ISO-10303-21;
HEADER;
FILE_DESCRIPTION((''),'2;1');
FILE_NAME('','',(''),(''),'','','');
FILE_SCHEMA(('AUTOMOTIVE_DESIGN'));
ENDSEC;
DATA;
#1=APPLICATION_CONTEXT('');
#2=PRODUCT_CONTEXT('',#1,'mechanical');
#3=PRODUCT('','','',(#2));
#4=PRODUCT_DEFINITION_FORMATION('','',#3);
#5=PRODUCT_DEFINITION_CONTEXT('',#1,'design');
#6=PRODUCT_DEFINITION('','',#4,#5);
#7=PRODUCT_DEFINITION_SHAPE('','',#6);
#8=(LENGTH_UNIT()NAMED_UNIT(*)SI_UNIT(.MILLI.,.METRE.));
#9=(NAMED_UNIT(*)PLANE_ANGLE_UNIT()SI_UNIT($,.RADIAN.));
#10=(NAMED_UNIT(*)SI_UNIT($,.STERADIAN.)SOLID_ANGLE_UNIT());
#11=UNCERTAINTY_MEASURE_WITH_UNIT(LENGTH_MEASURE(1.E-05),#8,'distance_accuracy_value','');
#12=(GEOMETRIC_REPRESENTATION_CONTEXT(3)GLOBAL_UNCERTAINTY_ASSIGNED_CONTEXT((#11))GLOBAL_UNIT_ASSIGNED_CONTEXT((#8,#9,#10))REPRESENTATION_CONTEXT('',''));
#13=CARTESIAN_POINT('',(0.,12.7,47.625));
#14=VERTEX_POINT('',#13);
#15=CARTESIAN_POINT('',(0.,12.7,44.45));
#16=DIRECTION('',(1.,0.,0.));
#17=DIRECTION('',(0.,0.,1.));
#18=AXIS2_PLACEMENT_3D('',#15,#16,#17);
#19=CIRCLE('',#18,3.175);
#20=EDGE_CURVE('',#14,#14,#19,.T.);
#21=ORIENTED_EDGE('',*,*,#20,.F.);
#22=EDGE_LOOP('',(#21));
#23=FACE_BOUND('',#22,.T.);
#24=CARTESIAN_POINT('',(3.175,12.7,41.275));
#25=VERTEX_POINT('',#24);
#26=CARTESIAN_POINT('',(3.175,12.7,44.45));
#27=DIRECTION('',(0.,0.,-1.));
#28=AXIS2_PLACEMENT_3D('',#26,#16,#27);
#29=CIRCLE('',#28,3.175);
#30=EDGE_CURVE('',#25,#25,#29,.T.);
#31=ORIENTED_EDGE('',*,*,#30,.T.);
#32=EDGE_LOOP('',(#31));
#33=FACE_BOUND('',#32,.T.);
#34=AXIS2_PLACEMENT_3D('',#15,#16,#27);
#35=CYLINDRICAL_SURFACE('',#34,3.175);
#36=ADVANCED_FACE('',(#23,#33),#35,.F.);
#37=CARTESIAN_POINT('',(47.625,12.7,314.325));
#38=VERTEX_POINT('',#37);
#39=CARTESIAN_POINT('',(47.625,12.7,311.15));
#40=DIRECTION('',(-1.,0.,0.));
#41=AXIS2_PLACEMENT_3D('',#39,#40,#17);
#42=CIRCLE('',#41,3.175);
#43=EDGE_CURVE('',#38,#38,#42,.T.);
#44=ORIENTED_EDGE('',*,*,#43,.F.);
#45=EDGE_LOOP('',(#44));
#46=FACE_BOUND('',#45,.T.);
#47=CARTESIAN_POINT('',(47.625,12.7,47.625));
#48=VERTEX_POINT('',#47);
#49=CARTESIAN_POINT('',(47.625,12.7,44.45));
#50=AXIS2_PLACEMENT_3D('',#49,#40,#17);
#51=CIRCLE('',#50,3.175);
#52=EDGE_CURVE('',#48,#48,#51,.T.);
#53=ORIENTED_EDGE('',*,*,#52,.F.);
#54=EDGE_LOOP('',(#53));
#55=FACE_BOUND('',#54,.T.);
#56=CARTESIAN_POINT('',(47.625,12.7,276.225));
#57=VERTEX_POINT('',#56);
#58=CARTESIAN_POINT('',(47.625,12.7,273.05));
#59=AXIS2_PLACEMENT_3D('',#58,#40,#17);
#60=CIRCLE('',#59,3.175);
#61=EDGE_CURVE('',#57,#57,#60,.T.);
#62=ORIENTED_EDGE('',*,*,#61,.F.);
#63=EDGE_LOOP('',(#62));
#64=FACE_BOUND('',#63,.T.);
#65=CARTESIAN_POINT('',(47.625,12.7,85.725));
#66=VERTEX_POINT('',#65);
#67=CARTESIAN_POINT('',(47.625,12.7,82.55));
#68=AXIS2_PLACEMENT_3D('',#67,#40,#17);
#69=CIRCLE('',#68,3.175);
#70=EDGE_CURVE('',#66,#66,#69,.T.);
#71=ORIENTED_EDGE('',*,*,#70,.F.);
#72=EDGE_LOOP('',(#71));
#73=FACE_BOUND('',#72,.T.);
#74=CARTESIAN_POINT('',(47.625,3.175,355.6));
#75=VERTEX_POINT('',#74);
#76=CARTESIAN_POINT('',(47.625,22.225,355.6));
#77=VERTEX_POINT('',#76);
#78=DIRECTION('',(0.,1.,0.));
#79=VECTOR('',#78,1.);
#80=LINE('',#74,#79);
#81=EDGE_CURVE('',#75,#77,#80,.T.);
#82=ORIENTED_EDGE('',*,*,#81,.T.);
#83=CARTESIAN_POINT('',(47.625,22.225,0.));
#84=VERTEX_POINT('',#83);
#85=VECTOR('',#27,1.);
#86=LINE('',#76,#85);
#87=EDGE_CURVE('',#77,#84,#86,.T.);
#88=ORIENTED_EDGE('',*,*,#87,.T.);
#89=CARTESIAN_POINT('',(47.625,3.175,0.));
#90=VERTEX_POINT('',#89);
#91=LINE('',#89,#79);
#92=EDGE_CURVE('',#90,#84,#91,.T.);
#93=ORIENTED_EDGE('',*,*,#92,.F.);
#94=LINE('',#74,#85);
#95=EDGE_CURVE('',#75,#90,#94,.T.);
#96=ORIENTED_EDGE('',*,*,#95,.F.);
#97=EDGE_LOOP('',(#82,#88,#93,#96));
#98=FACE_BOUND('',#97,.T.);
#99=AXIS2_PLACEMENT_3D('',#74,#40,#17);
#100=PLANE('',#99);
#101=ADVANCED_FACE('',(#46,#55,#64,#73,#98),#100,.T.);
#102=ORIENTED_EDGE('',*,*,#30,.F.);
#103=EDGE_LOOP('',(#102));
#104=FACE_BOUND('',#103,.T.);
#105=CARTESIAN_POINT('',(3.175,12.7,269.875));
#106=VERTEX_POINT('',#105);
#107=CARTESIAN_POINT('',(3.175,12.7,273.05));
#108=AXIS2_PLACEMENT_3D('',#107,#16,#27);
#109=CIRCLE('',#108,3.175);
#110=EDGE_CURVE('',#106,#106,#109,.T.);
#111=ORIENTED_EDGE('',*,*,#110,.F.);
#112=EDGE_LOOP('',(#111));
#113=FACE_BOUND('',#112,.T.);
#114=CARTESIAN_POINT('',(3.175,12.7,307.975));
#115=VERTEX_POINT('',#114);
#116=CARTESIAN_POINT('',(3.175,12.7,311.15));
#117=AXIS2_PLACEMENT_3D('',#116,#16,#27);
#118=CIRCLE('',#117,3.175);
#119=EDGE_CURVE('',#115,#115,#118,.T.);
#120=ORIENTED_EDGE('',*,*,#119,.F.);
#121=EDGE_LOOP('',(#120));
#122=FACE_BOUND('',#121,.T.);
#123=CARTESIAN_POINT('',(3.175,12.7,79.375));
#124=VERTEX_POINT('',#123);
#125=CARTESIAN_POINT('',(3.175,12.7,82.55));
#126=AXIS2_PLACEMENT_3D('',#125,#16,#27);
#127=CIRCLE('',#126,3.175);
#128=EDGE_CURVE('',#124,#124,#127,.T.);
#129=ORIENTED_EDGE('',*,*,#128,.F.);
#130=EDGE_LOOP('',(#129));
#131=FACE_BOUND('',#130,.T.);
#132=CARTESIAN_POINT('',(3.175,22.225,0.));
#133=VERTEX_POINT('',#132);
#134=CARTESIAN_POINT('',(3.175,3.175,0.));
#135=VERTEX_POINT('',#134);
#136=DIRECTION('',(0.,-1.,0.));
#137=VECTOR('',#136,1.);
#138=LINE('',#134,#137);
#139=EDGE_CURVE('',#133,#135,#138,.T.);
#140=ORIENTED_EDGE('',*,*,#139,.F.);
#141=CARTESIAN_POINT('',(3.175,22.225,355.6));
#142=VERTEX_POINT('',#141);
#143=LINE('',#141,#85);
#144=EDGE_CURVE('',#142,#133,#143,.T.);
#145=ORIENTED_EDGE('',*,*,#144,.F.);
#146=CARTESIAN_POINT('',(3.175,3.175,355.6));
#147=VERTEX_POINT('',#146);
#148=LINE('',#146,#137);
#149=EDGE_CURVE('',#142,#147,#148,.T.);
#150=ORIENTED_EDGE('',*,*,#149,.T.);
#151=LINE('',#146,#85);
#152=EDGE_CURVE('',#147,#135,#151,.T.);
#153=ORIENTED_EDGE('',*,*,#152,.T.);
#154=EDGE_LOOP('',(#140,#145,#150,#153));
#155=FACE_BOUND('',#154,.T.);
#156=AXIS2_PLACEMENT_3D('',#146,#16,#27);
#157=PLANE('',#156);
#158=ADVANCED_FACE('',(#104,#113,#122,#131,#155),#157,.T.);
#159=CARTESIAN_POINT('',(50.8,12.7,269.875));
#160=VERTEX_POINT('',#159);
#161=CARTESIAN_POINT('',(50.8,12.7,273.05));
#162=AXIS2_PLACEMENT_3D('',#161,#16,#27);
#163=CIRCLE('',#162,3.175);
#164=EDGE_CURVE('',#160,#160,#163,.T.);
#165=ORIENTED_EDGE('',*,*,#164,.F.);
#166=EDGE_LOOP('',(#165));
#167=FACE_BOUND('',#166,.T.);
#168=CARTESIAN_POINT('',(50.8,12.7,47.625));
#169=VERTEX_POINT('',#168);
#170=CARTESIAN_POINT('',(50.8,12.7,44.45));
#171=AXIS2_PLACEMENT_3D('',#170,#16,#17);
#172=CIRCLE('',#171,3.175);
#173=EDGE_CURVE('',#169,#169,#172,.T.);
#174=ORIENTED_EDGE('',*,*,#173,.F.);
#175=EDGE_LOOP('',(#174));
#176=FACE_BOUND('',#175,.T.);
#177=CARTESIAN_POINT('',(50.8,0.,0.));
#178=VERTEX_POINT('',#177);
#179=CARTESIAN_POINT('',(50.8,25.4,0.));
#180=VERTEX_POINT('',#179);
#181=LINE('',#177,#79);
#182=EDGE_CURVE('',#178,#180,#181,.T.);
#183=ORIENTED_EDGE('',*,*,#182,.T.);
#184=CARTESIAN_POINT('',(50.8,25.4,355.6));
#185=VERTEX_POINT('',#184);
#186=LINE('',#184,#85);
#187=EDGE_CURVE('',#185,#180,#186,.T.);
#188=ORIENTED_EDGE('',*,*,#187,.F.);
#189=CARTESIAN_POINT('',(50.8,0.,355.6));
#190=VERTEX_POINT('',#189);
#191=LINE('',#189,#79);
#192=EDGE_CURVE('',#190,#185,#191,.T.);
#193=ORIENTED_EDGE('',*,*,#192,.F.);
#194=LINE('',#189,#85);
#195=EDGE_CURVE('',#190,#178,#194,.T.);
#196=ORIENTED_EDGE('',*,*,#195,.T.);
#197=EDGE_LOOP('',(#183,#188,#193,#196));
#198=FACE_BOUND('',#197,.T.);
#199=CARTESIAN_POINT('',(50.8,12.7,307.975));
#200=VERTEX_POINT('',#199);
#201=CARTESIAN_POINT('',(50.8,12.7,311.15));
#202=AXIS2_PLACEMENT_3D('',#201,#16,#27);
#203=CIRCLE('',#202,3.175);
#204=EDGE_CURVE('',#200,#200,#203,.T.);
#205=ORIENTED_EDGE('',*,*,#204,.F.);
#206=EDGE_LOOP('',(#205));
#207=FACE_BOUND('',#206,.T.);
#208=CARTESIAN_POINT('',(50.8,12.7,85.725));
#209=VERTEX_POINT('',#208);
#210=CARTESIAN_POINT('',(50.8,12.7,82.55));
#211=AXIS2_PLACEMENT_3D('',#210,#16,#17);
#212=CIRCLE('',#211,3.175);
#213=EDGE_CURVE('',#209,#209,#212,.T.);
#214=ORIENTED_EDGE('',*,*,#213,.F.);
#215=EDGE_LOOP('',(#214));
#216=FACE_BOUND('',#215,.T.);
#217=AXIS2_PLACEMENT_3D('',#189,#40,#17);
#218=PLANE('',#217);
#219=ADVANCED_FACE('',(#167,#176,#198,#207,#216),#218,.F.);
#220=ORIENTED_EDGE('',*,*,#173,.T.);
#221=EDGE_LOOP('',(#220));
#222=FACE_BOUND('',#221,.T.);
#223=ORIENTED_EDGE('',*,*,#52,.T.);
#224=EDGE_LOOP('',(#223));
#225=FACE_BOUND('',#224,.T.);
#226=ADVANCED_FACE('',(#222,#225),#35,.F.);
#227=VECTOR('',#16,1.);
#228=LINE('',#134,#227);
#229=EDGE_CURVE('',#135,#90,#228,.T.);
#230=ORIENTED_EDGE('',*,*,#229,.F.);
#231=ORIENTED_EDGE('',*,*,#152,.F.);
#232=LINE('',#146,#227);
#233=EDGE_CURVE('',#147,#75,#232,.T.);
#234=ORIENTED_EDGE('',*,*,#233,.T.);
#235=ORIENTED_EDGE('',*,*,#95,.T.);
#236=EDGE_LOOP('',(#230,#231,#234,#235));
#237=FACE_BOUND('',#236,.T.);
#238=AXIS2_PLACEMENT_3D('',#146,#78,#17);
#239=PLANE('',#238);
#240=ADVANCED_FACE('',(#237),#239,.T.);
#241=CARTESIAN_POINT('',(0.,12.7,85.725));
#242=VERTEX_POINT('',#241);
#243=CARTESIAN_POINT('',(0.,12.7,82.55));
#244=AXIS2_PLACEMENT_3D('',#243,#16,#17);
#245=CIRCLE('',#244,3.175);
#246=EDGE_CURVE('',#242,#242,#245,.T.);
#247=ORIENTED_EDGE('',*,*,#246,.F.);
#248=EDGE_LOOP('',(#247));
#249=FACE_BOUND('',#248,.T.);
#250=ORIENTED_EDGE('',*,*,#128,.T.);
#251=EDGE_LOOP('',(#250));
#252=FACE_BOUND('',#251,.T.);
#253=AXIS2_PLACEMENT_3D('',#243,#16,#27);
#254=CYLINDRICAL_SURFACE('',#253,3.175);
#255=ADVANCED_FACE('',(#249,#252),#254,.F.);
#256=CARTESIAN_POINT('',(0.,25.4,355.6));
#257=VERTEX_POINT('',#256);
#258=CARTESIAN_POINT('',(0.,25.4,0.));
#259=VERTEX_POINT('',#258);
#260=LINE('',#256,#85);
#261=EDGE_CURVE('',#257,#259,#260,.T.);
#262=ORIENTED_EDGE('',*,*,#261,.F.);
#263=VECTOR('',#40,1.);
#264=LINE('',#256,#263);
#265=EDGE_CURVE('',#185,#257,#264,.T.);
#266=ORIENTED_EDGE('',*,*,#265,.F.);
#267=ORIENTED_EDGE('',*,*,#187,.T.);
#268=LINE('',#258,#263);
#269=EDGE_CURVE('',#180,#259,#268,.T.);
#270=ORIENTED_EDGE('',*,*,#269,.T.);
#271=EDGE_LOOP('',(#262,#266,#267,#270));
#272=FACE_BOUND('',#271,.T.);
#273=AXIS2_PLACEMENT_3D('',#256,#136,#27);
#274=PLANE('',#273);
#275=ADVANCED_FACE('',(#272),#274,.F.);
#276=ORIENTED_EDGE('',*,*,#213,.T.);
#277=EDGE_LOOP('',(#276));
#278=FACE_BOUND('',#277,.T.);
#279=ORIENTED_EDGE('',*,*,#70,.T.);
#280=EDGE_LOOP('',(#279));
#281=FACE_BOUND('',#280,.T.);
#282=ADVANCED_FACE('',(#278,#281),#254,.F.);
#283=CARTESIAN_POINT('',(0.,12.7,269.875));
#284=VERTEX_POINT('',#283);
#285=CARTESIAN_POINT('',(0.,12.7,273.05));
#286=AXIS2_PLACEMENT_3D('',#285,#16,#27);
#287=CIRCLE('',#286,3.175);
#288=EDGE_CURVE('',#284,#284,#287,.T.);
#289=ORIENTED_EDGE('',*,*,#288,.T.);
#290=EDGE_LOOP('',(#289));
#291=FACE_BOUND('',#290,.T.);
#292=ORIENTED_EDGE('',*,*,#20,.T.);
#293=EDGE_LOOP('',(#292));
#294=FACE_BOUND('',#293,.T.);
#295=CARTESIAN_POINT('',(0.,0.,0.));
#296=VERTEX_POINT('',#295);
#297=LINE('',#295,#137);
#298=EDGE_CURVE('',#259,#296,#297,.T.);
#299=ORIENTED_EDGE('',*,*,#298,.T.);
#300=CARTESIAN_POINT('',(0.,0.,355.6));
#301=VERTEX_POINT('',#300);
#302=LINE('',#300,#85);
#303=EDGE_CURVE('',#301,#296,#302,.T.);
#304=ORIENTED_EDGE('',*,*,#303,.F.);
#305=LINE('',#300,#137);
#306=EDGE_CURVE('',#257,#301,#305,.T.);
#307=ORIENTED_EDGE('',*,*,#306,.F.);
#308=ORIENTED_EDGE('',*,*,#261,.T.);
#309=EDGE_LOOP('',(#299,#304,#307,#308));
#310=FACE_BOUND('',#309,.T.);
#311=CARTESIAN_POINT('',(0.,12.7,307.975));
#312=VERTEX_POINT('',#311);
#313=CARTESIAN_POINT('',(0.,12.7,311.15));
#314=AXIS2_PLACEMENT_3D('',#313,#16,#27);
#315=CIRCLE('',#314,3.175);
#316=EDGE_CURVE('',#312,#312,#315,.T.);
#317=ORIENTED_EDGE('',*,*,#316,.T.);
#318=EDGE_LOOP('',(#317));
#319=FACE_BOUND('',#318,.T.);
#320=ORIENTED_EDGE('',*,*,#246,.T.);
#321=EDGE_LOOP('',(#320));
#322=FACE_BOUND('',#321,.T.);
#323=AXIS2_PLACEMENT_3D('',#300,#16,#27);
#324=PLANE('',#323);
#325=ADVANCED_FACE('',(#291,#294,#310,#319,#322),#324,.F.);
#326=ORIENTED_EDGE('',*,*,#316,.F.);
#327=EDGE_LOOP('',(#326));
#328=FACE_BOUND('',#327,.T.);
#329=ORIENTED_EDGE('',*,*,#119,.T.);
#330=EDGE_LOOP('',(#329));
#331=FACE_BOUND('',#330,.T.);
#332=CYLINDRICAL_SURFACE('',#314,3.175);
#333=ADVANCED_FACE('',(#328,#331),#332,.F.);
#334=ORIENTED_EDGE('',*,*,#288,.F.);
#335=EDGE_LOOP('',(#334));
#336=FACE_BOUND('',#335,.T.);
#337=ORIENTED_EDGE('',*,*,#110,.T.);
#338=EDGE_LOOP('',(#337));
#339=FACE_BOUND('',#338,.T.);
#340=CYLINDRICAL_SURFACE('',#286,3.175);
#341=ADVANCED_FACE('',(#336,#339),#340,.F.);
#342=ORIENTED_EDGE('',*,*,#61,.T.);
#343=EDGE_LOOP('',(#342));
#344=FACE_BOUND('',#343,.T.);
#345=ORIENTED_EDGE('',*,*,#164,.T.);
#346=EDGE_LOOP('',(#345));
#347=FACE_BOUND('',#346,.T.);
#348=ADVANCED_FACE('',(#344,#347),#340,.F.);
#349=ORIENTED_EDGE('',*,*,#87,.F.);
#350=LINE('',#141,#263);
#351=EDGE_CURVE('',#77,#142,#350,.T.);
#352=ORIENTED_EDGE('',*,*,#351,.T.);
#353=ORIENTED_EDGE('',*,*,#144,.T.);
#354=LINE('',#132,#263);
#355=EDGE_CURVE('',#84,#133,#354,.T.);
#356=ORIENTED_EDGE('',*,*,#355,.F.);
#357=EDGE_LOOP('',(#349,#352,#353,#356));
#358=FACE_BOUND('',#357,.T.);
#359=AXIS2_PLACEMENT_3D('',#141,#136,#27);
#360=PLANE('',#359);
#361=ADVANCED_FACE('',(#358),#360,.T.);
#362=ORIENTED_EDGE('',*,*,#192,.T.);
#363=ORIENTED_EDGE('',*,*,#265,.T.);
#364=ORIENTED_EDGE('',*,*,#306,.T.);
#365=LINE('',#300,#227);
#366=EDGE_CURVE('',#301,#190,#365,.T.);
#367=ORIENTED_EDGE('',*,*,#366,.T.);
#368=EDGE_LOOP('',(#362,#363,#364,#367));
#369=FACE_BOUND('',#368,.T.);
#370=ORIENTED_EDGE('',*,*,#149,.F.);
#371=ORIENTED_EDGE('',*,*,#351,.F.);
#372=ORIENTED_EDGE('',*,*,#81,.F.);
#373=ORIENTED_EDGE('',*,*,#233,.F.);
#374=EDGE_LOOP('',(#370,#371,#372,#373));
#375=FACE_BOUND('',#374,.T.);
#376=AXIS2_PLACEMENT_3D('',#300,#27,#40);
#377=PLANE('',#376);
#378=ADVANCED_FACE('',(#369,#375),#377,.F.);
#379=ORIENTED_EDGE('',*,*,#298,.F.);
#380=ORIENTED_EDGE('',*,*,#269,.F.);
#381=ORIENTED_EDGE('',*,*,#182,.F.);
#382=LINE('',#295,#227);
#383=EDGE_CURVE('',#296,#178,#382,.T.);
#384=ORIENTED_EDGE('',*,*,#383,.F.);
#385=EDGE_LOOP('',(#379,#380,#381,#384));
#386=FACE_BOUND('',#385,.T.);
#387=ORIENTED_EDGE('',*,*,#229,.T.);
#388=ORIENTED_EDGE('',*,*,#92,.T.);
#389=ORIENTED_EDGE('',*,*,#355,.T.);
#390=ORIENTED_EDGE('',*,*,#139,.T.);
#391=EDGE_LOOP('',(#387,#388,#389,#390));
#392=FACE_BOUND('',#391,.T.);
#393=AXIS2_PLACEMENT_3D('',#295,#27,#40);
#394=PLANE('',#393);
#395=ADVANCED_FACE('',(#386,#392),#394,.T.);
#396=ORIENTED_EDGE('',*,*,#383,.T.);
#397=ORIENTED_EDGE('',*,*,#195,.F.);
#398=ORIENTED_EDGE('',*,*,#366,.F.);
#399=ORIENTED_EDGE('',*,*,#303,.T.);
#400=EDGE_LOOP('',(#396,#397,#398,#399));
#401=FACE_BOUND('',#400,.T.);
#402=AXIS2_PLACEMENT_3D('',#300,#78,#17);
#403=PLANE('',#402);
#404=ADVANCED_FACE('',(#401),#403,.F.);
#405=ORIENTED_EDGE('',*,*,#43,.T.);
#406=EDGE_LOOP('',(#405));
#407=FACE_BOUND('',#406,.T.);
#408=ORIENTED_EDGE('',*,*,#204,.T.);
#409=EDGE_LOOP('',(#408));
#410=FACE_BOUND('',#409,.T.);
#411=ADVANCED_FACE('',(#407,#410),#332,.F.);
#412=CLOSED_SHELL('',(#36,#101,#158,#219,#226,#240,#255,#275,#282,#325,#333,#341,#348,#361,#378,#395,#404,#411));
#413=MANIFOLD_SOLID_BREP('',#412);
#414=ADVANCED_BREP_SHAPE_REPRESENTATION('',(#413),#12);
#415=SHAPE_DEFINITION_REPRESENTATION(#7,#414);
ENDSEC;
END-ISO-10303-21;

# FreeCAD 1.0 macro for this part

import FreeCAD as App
import Part
import Sketcher
Q = App.Units.Quantity


def add_polygon(sketch, points):
    """Adds a closed chain of lines whose ends are joined by coincident constraints."""
    first, n = sketch.GeometryCount, len(points)
    for a, b in zip(points, points[1:] + points[:1]):
        sketch.addGeometry(Part.LineSegment(App.Vector(*a, 0), App.Vector(*b, 0)), False)
    for i in range(n):
        sketch.addConstraint(Sketcher.Constraint("Coincident", first + i, 2, first + (i + 1) % n, 1))

doc = App.newDocument("Part")
body = doc.addObject("PartDesign::Body", "Body")

sketch1 = body.newObject("Sketcher::SketchObject", "Sketch")
sketch1.AttachmentSupport = (doc.getObject("XY_Plane"), [""])
sketch1.MapMode = "FlatFace"
add_polygon(sketch1, [(0, 25.4), (0, 0), (50.8, 0), (50.8, 25.4)])
add_polygon(sketch1, [(47.625, 3.175), (3.175, 3.175), (3.175, 22.225), (47.625, 22.225)])
sketch1.addConstraint(Sketcher.Constraint("Vertical", 0))
sketch1.addConstraint(Sketcher.Constraint("Horizontal", 1))
sketch1.addConstraint(Sketcher.Constraint("Vertical", 2))
sketch1.addConstraint(Sketcher.Constraint("Horizontal", 3))
sketch1.addConstraint(Sketcher.Constraint("Horizontal", 4))
sketch1.addConstraint(Sketcher.Constraint("Vertical", 5))
sketch1.addConstraint(Sketcher.Constraint("Horizontal", 6))
sketch1.addConstraint(Sketcher.Constraint("Vertical", 7))
sketch1.addConstraint(Sketcher.Constraint("Coincident", 0, 2, -1, 1))
sketch1.addConstraint(Sketcher.Constraint("DistanceX", 1, 1, 1, 2, Q("2 in")))
sketch1.addConstraint(Sketcher.Constraint("DistanceY", 0, 2, 0, 1, Q("1 in")))
sketch1.addConstraint(Sketcher.Constraint("DistanceX", 4, 2, 4, 1, Q("1.75 in")))
sketch1.addConstraint(Sketcher.Constraint("DistanceY", 5, 1, 5, 2, Q("0.75 in")))
sketch1.addConstraint(Sketcher.Constraint("DistanceX", -1, 1, 4, 2, Q("0.125 in")))
sketch1.addConstraint(Sketcher.Constraint("DistanceY", -1, 1, 4, 2, Q("0.125 in")))
pad1 = body.newObject("PartDesign::Pad", "Pad")
pad1.Profile = sketch1
pad1.Length = Q("14 in")

sketch2 = body.newObject("Sketcher::SketchObject", "Sketch001")
sketch2.AttachmentSupport = (doc.getObject("YZ_Plane"), [""])
sketch2.MapMode = "FlatFace"
sketch2.AttachmentOffset = App.Placement(App.Vector(0, 0, 2 * 25.4), App.Rotation())
sketch2.addGeometry(Part.Circle(App.Vector(12.7, 273.05, 0), App.Vector(0, 0, 1), 3.175), False)
sketch2.addGeometry(Part.Circle(App.Vector(12.7, 311.15, 0), App.Vector(0, 0, 1), 3.175), False)
sketch2.addGeometry(Part.Circle(App.Vector(12.7, 44.45, 0), App.Vector(0, 0, 1), 3.175), False)
sketch2.addGeometry(Part.Circle(App.Vector(12.7, 82.55, 0), App.Vector(0, 0, 1), 3.175), False)
sketch2.addConstraint(Sketcher.Constraint("Equal", 0, 1))
sketch2.addConstraint(Sketcher.Constraint("Equal", 1, 2))
sketch2.addConstraint(Sketcher.Constraint("Equal", 2, 3))
sketch2.addConstraint(Sketcher.Constraint("Vertical", 0, 3, 1, 3))
sketch2.addConstraint(Sketcher.Constraint("Vertical", 1, 3, 2, 3))
sketch2.addConstraint(Sketcher.Constraint("Vertical", 2, 3, 3, 3))
sketch2.addConstraint(Sketcher.Constraint("Diameter", 0, Q("0.25 in")))
sketch2.addConstraint(Sketcher.Constraint("DistanceY", 2, 3, 0, 3, Q("9 in")))
sketch2.addConstraint(Sketcher.Constraint("DistanceY", 3, 3, 1, 3, Q("9 in")))
sketch2.addConstraint(Sketcher.Constraint("DistanceX", -1, 1, 0, 3, Q("0.5 in")))
sketch2.addConstraint(Sketcher.Constraint("DistanceY", 0, 3, 1, 3, Q("1.5 in")))
sketch2.addConstraint(Sketcher.Constraint("DistanceY", -1, 1, 0, 3, Q("10.75 in")))
pocket1 = body.newObject("PartDesign::Pocket", "Pocket")
pocket1.Profile = sketch2
pocket1.Type = "ThroughAll"
pocket1.Midplane = True

doc.recompute()
